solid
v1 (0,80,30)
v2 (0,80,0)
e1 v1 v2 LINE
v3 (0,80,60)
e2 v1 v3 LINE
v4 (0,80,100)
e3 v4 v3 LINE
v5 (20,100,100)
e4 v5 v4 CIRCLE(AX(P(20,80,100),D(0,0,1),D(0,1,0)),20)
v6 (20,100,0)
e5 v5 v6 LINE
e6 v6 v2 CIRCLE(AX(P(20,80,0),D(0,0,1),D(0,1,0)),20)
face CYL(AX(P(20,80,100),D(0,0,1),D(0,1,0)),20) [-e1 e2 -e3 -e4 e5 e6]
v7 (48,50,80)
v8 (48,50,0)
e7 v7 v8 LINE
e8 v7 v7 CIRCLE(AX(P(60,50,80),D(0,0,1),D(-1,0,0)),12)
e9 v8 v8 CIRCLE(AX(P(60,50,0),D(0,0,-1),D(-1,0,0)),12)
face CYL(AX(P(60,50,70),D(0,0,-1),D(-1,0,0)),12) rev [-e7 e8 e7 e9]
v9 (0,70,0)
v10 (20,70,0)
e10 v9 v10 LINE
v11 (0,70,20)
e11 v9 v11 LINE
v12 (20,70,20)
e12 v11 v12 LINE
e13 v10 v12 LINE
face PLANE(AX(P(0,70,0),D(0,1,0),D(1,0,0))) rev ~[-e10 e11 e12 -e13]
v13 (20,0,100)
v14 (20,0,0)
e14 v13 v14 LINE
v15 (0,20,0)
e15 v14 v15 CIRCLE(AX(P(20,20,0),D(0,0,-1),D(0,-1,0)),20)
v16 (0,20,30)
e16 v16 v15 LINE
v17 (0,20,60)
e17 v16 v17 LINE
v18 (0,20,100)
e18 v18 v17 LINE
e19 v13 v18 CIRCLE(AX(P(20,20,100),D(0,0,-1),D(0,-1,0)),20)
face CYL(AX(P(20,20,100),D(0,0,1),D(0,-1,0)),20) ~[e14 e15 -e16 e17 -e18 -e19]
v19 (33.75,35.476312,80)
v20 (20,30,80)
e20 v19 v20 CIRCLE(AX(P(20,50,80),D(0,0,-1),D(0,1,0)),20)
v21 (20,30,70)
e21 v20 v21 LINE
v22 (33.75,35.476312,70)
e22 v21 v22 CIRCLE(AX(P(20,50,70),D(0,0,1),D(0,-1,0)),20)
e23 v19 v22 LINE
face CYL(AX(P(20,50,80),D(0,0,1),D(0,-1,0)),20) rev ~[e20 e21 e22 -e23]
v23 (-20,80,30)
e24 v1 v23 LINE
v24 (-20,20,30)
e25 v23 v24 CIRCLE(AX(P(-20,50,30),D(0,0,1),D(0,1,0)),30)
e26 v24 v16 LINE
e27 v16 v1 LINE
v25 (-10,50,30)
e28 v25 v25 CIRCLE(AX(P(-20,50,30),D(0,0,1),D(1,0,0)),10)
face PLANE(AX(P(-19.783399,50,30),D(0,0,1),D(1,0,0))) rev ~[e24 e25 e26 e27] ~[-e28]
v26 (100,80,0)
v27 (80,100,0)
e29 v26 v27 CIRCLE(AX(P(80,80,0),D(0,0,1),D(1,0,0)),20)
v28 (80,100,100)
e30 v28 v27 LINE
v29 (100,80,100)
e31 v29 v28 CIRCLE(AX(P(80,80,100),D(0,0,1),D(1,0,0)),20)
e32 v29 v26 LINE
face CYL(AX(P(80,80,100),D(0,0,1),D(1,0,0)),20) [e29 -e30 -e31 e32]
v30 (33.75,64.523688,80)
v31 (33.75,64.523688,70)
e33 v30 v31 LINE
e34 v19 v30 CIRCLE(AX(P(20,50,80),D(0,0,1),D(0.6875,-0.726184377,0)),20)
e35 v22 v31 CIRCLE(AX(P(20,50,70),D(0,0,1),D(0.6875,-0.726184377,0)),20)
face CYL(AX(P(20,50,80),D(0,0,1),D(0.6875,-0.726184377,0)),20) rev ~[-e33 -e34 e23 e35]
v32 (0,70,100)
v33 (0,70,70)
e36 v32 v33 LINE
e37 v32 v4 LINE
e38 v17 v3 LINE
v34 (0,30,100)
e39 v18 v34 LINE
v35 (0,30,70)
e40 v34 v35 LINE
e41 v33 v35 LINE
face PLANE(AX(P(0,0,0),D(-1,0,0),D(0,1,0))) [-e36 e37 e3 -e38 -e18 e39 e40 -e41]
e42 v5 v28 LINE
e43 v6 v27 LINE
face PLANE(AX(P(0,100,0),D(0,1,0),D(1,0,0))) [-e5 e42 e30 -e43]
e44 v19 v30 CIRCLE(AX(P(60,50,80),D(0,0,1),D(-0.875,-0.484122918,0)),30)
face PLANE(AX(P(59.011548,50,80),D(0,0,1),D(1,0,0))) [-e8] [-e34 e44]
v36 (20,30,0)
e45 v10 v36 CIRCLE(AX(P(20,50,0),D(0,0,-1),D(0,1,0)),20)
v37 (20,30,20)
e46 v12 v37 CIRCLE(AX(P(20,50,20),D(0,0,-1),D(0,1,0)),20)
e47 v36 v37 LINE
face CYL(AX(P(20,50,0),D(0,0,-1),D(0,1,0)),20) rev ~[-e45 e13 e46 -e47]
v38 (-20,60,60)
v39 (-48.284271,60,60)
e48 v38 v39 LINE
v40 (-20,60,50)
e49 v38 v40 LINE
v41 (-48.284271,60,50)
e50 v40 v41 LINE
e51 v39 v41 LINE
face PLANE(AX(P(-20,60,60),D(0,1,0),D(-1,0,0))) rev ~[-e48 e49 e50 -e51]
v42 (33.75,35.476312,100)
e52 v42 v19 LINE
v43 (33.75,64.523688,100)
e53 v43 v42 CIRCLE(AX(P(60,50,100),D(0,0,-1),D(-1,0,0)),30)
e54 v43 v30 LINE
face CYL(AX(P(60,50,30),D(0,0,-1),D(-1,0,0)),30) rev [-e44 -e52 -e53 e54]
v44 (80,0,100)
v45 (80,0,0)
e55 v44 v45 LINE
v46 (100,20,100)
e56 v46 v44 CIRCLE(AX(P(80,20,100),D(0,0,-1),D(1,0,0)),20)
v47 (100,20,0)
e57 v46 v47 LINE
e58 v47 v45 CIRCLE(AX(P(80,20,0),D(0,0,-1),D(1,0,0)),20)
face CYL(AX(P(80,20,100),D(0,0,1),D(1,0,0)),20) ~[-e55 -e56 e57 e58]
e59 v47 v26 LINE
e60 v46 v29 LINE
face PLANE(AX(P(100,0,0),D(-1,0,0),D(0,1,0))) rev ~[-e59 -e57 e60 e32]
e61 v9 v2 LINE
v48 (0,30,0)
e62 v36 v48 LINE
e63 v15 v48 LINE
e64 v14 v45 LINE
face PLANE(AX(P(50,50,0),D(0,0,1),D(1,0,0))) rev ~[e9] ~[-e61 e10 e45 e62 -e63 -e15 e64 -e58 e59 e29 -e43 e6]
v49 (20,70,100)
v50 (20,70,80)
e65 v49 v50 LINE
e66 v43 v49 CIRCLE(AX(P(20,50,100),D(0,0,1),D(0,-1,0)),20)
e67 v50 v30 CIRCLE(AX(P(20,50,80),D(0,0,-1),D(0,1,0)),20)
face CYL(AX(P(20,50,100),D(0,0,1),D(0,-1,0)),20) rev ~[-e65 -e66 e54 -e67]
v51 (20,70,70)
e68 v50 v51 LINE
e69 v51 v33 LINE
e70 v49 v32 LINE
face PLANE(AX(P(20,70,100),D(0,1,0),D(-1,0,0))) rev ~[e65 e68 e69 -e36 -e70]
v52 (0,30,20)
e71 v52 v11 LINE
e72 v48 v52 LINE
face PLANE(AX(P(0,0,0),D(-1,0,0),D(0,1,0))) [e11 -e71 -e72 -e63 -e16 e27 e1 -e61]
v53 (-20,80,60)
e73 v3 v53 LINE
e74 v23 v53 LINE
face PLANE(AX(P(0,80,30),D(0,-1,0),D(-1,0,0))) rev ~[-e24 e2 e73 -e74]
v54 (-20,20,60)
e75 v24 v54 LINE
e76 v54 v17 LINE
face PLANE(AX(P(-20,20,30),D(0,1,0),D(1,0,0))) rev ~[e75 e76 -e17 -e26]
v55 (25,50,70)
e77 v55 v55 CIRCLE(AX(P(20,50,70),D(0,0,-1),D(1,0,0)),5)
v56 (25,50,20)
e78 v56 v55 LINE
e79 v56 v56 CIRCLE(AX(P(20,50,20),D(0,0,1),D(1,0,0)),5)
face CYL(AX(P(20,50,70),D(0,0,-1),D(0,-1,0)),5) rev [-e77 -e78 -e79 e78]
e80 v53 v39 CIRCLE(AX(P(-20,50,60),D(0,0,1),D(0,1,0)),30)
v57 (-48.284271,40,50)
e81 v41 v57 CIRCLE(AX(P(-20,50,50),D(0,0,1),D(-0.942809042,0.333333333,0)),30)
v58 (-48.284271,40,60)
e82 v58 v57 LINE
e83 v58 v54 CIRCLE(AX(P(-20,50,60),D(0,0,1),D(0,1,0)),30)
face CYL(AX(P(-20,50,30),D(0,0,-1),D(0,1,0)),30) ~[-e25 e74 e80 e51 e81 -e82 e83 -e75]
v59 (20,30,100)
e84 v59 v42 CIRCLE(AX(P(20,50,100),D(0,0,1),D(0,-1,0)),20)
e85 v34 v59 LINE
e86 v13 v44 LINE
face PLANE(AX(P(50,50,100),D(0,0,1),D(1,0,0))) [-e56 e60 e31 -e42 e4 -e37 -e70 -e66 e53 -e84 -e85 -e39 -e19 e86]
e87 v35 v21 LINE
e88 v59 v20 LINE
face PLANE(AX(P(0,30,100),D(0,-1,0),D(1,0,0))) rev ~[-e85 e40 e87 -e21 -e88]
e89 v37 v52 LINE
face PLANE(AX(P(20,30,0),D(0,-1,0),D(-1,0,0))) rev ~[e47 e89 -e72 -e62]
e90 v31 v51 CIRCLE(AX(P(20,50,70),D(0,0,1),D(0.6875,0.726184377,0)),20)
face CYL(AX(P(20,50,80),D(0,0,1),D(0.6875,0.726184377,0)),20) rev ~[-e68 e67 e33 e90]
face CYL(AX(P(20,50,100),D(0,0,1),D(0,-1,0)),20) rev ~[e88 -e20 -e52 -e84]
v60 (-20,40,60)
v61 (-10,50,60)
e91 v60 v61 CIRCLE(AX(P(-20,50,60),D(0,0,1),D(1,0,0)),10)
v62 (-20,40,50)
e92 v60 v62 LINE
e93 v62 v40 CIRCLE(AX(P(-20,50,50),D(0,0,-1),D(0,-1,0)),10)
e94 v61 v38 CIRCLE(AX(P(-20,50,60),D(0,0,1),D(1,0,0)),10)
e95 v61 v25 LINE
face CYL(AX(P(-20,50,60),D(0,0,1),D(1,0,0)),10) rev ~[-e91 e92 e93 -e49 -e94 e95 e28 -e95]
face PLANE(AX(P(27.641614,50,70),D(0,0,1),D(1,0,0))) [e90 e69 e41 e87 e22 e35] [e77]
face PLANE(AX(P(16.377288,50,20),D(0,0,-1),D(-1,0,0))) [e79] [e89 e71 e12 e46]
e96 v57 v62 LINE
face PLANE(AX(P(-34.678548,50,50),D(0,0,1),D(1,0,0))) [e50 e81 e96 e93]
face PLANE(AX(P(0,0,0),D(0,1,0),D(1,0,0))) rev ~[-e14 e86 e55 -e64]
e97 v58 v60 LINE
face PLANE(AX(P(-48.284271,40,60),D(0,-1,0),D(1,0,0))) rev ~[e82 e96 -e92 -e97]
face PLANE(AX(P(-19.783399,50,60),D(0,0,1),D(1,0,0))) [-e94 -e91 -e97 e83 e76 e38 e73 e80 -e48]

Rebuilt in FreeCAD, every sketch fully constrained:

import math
import FreeCAD as App
import Part
import Sketcher

V = App.Vector

doc = App.newDocument("Part")
body = doc.addObject("PartDesign::Body", "Body")

sketch1 = body.newObject("Sketcher::SketchObject", "Sketch")
sketch1.AttachmentSupport = (doc.getObject("XY_Plane"), [""])
sketch1.MapMode = "FlatFace"
sketch1.addGeometry([
    Part.LineSegment(V(0, 100, 0), V(0, 0, 0)),
    Part.LineSegment(V(0, 0, 0), V(100, 0, 0)),
    Part.LineSegment(V(100, 0, 0), V(100, 100, 0)),
    Part.LineSegment(V(100, 100, 0), V(0, 100, 0)),
], False)
sketch1.addConstraint([
    Sketcher.Constraint("Coincident", 0, 2, 1, 1),
    Sketcher.Constraint("Coincident", 1, 2, 2, 1),
    Sketcher.Constraint("Coincident", 2, 2, 3, 1),
    Sketcher.Constraint("Coincident", 3, 2, 0, 1),
    Sketcher.Constraint("Vertical", 0),
    Sketcher.Constraint("Horizontal", 1),
    Sketcher.Constraint("Vertical", 2),
    Sketcher.Constraint("Horizontal", 3),
    Sketcher.Constraint("Coincident", 0, 2, -1, 1),
    Sketcher.Constraint("Equal", 3, 0),
    Sketcher.Constraint("DistanceX", 1, 1, 1, 2, 100.0),
])
pad1 = body.newObject("PartDesign::Pad", "Pad")
pad1.Profile = sketch1
pad1.Length = 100

sketch2 = body.newObject("Sketcher::SketchObject", "Sketch001")
sketch2.AttachmentSupport = (doc.getObject("XY_Plane"), [""])
sketch2.MapMode = "FlatFace"
sketch2.AttachmentOffset = App.Placement(V(0, 0, 100), App.Rotation())
sketch2.addGeometry([
    Part.LineSegment(V(0, 100, 0), V(0, 80, 0)),
    Part.ArcOfCircle(Part.Circle(V(20, 80, 0), V(0, 0, 1), 20), math.radians(90), math.radians(180)),
    Part.LineSegment(V(20, 100, 0), V(0, 100, 0)),
    Part.LineSegment(V(100, 100, 0), V(80, 100, 0)),
    Part.ArcOfCircle(Part.Circle(V(80, 80, 0), V(0, 0, 1), 20), math.radians(0), math.radians(90)),
    Part.LineSegment(V(100, 80, 0), V(100, 100, 0)),
    Part.LineSegment(V(80, 0, 0), V(100, 0, 0)),
    Part.LineSegment(V(100, 0, 0), V(100, 20, 0)),
    Part.ArcOfCircle(Part.Circle(V(80, 20, 0), V(0, 0, 1), 20), math.radians(-90), math.radians(0)),
    Part.LineSegment(V(0, 20, 0), V(0, 0, 0)),
    Part.LineSegment(V(0, 0, 0), V(20, 0, 0)),
    Part.ArcOfCircle(Part.Circle(V(20, 20, 0), V(0, 0, 1), 20), math.radians(180), math.radians(270)),
], False)
sketch2.addConstraint([
    Sketcher.Constraint("Tangent", 0, 2, 1, 2),
    Sketcher.Constraint("Tangent", 1, 1, 2, 1),
    Sketcher.Constraint("Coincident", 2, 2, 0, 1),
    Sketcher.Constraint("Tangent", 3, 2, 4, 2),
    Sketcher.Constraint("Tangent", 4, 1, 5, 1),
    Sketcher.Constraint("Coincident", 5, 2, 3, 1),
    Sketcher.Constraint("Coincident", 6, 2, 7, 1),
    Sketcher.Constraint("Tangent", 7, 2, 8, 2),
    Sketcher.Constraint("Tangent", 8, 1, 6, 1),
    Sketcher.Constraint("Coincident", 9, 2, 10, 1),
    Sketcher.Constraint("Tangent", 10, 2, 11, 2),
    Sketcher.Constraint("Tangent", 11, 1, 9, 1),
    Sketcher.Constraint("Vertical", 0),
    Sketcher.Constraint("Horizontal", 2),
    Sketcher.Constraint("Horizontal", 3),
    Sketcher.Constraint("Vertical", 5),
    Sketcher.Constraint("Horizontal", 6),
    Sketcher.Constraint("Vertical", 7),
    Sketcher.Constraint("Vertical", 9),
    Sketcher.Constraint("Horizontal", 10),
    Sketcher.Constraint("Coincident", 9, 2, -1, 1),
    Sketcher.Constraint("Equal", 1, 4),
    Sketcher.Constraint("Equal", 4, 8),
    Sketcher.Constraint("Equal", 8, 11),
    Sketcher.Constraint("PointOnObject", 0, 2, -2),
    Sketcher.Constraint("PointOnObject", 6, 2, -1),
    Sketcher.Constraint("Horizontal", 1, 3, 4, 3),
    Sketcher.Constraint("Vertical", 4, 3, 8, 3),
    Sketcher.Constraint("Radius", 1, 20.0),
    Sketcher.Constraint("DistanceY", -1, 1, 1, 3, 80.0),
    Sketcher.Constraint("DistanceX", -1, 1, 4, 3, 80.0),
])
pocket1 = body.newObject("PartDesign::Pocket", "Pocket")
pocket1.Profile = sketch2
pocket1.Length = 100

sketch3 = body.newObject("Sketcher::SketchObject", "Sketch002")
sketch3.AttachmentSupport = (doc.getObject("XY_Plane"), [""])
sketch3.MapMode = "FlatFace"
sketch3.addGeometry(Part.Circle(V(60, 50, 0), V(0, 0, 1), 12), False)
sketch3.addConstraint([
    Sketcher.Constraint("Diameter", 0, 24.0),
    Sketcher.Constraint("DistanceX", -1, 1, 0, 3, 60.0),
    Sketcher.Constraint("DistanceY", -1, 1, 0, 3, 50.0),
])
pocket2 = body.newObject("PartDesign::Pocket", "Pocket001")
pocket2.Profile = sketch3
pocket2.Length = 80
pocket2.Reversed = True

sketch4 = body.newObject("Sketcher::SketchObject", "Sketch003")
sketch4.AttachmentSupport = (doc.getObject("XY_Plane"), [""])
sketch4.MapMode = "FlatFace"
sketch4.AttachmentOffset = App.Placement(V(0, 0, 20), App.Rotation())
sketch4.addGeometry(Part.Circle(V(20, 50, 0), V(0, 0, 1), 5), False)
sketch4.addConstraint([
    Sketcher.Constraint("Diameter", 0, 10.0),
    Sketcher.Constraint("DistanceX", -1, 1, 0, 3, 20.0),
    Sketcher.Constraint("DistanceY", -1, 1, 0, 3, 50.0),
])
pocket3 = body.newObject("PartDesign::Pocket", "Pocket002")
pocket3.Profile = sketch4
pocket3.Length = 50
pocket3.Reversed = True

sketch5 = body.newObject("Sketcher::SketchObject", "Sketch004")
sketch5.AttachmentSupport = (doc.getObject("XY_Plane"), [""])
sketch5.MapMode = "FlatFace"
sketch5.AttachmentOffset = App.Placement(V(0, 0, 30), App.Rotation())
sketch5.addGeometry([
    Part.LineSegment(V(0, 80, 0), V(-20, 80, 0)),
    Part.ArcOfCircle(Part.Circle(V(-20, 50, 0), V(0, 0, 1), 30), math.radians(90), math.radians(270)),
    Part.LineSegment(V(-20, 20, 0), V(0, 20, 0)),
    Part.LineSegment(V(0, 20, 0), V(0, 80, 0)),
], False)
sketch5.addConstraint([
    Sketcher.Constraint("Tangent", 0, 2, 1, 1),
    Sketcher.Constraint("Tangent", 1, 2, 2, 1),
    Sketcher.Constraint("Coincident", 2, 2, 3, 1),
    Sketcher.Constraint("Coincident", 3, 2, 0, 1),
    Sketcher.Constraint("Horizontal", 0),
    Sketcher.Constraint("Horizontal", 2),
    Sketcher.Constraint("Vertical", 3),
    Sketcher.Constraint("PointOnObject", 2, 2, -2),
    Sketcher.Constraint("Radius", 1, 30.0),
    Sketcher.Constraint("DistanceX", 0, 2, 0, 1, 20.0),
    Sketcher.Constraint("DistanceY", -1, 1, 1, 3, 50.0),
])
pad2 = body.newObject("PartDesign::Pad", "Pad001")
pad2.Profile = sketch5
pad2.Length = 30

sketch6 = body.newObject("Sketcher::SketchObject", "Sketch005")
sketch6.AttachmentSupport = (doc.getObject("XY_Plane"), [""])
sketch6.MapMode = "FlatFace"
sketch6.AttachmentOffset = App.Placement(V(0, 0, 60), App.Rotation())
sketch6.addGeometry(Part.Circle(V(-20, 50, 0), V(0, 0, 1), 10), False)
sketch6.addConstraint([
    Sketcher.Constraint("Diameter", 0, 20.0),
    Sketcher.Constraint("DistanceX", 0, 3, -1, 1, 20.0),
    Sketcher.Constraint("DistanceY", -1, 1, 0, 3, 50.0),
])
pocket4 = body.newObject("PartDesign::Pocket", "Pocket003")
pocket4.Profile = sketch6
pocket4.Length = 30

sketch7 = body.newObject("Sketcher::SketchObject", "Sketch006")
sketch7.AttachmentSupport = (doc.getObject("XY_Plane"), [""])
sketch7.MapMode = "FlatFace"
sketch7.AttachmentOffset = App.Placement(V(0, 0, 60), App.Rotation())
sketch7.addGeometry([
    Part.LineSegment(V(-20, 60, 0), V(-48, 60, 0)),
    Part.ArcOfCircle(Part.Circle(V(-20, 50, 0), V(0, 0, 1), 30), math.radians(161), math.radians(199)),
    Part.LineSegment(V(-48, 40, 0), V(-20, 40, 0)),
    Part.ArcOfCircle(Part.Circle(V(-20, 50, 0), V(0, 0, 1), 10), math.radians(90), math.radians(270)),
], False)
sketch7.addConstraint([
    Sketcher.Constraint("Coincident", 0, 2, 1, 1),
    Sketcher.Constraint("Coincident", 1, 2, 2, 1),
    Sketcher.Constraint("Tangent", 2, 2, 3, 2),
    Sketcher.Constraint("Tangent", 3, 1, 0, 1),
    Sketcher.Constraint("Horizontal", 0),
    Sketcher.Constraint("Horizontal", 2),
    Sketcher.Constraint("Coincident", 3, 3, 1, 3),
    Sketcher.Constraint("Radius", 1, 30.0),
    Sketcher.Constraint("Radius", 3, 10.0),
    Sketcher.Constraint("DistanceX", 1, 3, -1, 1, 20.0),
    Sketcher.Constraint("DistanceY", -1, 1, 1, 3, 50.0),
])
pocket5 = body.newObject("PartDesign::Pocket", "Pocket004")
pocket5.Profile = sketch7
pocket5.Length = 10

sketch8 = body.newObject("Sketcher::SketchObject", "Sketch007")
sketch8.AttachmentSupport = (doc.getObject("XY_Plane"), [""])
sketch8.MapMode = "FlatFace"
sketch8.AttachmentOffset = App.Placement(V(0, 0, 30), App.Rotation())
sketch8.addGeometry(Part.Circle(V(60, 50, 0), V(0, 0, 1), 30), False)
sketch8.addConstraint([
    Sketcher.Constraint("Diameter", 0, 60.0),
    Sketcher.Constraint("DistanceX", -1, 1, 0, 3, 60.0),
    Sketcher.Constraint("DistanceY", -1, 1, 0, 3, 50.0),
])
pocket6 = body.newObject("PartDesign::Pocket", "Pocket005")
pocket6.Profile = sketch8
pocket6.Length = 96
pocket6.Reversed = True

sketch9 = body.newObject("Sketcher::SketchObject", "Sketch008")
sketch9.AttachmentSupport = (doc.getObject("XY_Plane"), [""])
sketch9.MapMode = "FlatFace"
sketch9.AttachmentOffset = App.Placement(V(0, 0, 100), App.Rotation())
sketch9.addGeometry([
    Part.LineSegment(V(20, 70, 0), V(0, 70, 0)),
    Part.LineSegment(V(0, 70, 0), V(0, 30, 0)),
    Part.LineSegment(V(0, 30, 0), V(20, 30, 0)),
    Part.ArcOfCircle(Part.Circle(V(20, 50, 0), V(0, 0, 1), 20), math.radians(-90), math.radians(90)),
], False)
sketch9.addConstraint([
    Sketcher.Constraint("Coincident", 0, 2, 1, 1),
    Sketcher.Constraint("Coincident", 1, 2, 2, 1),
    Sketcher.Constraint("Tangent", 2, 2, 3, 1),
    Sketcher.Constraint("Tangent", 3, 2, 0, 1),
    Sketcher.Constraint("Horizontal", 0),
    Sketcher.Constraint("Vertical", 1),
    Sketcher.Constraint("Horizontal", 2),
    Sketcher.Constraint("PointOnObject", 0, 2, -2),
    Sketcher.Constraint("Radius", 3, 20.0),
    Sketcher.Constraint("DistanceX", 0, 2, 0, 1, 20.0),
    Sketcher.Constraint("DistanceY", -1, 1, 3, 3, 50.0),
])
pocket7 = body.newObject("PartDesign::Pocket", "Pocket006")
pocket7.Profile = sketch9
pocket7.Length = 30

sketch10 = body.newObject("Sketcher::SketchObject", "Sketch009")
sketch10.AttachmentSupport = (doc.getObject("XY_Plane"), [""])
sketch10.MapMode = "FlatFace"
sketch10.AttachmentOffset = App.Placement(V(0, 0, 70), App.Rotation())
sketch10.addGeometry([
    Part.LineSegment(V(20, 70, 0), V(20, 55, 0)),
    Part.ArcOfCircle(Part.Circle(V(20, 50, 0), V(0, 0, 1), 5), math.radians(-90), math.radians(90)),
    Part.LineSegment(V(20, 45, 0), V(20, 30, 0)),
    Part.ArcOfCircle(Part.Circle(V(20, 50, 0), V(0, 0, 1), 20), math.radians(-90), math.radians(90)),
], False)
sketch10.addConstraint([
    Sketcher.Constraint("Coincident", 0, 2, 1, 2),
    Sketcher.Constraint("Coincident", 1, 1, 2, 1),
    Sketcher.Constraint("Coincident", 2, 2, 3, 1),
    Sketcher.Constraint("Coincident", 3, 2, 0, 1),
    Sketcher.Constraint("Vertical", 0),
    Sketcher.Constraint("Vertical", 2),
    Sketcher.Constraint("Coincident", 3, 3, 1, 3),
    Sketcher.Constraint("Vertical", 3, 3, 0, 2),
    Sketcher.Constraint("Vertical", 0, 2, 1, 1),
    Sketcher.Constraint("Radius", 1, 5.0),
    Sketcher.Constraint("Radius", 3, 20.0),
    Sketcher.Constraint("DistanceX", -1, 1, 1, 3, 20.0),
    Sketcher.Constraint("DistanceY", -1, 1, 1, 3, 50.0),
])
pad3 = body.newObject("PartDesign::Pad", "Pad002")
pad3.Profile = sketch10
pad3.Length = 10

sketch11 = body.newObject("Sketcher::SketchObject", "Sketch010")
sketch11.AttachmentSupport = (doc.getObject("XY_Plane"), [""])
sketch11.MapMode = "FlatFace"
sketch11.AttachmentOffset = App.Placement(V(0, 0, 30), App.Rotation())
sketch11.addGeometry([
    Part.Circle(V(60, 50, 0), V(0, 0, 1), 30),
    Part.Circle(V(60, 50, 0), V(0, 0, 1), 12),
], False)
sketch11.addConstraint([
    Sketcher.Constraint("Coincident", 1, 3, 0, 3),
    Sketcher.Constraint("Diameter", 0, 60.0),
    Sketcher.Constraint("Diameter", 1, 24.0),
    Sketcher.Constraint("DistanceX", -1, 1, 0, 3, 60.0),
    Sketcher.Constraint("DistanceY", -1, 1, 0, 3, 50.0),
])
pad4 = body.newObject("PartDesign::Pad", "Pad003")
pad4.Profile = sketch11
pad4.Length = 40

sketch12 = body.newObject("Sketcher::SketchObject", "Sketch011")
sketch12.AttachmentSupport = (doc.getObject("XY_Plane"), [""])
sketch12.MapMode = "FlatFace"
sketch12.AttachmentOffset = App.Placement(V(0, 0, 70), App.Rotation())
sketch12.addGeometry([
    Part.ArcOfCircle(Part.Circle(V(60, 50, 0), V(0, 0, 1), 30), math.radians(-151), math.radians(151)),
    Part.ArcOfCircle(Part.Circle(V(20, 50, 0), V(0, 0, 1), 20), math.radians(-47), math.radians(47)),
    Part.Circle(V(60, 50, 0), V(0, 0, 1), 12),
], False)
sketch12.addConstraint([
    Sketcher.Constraint("Coincident", 0, 1, 1, 1),
    Sketcher.Constraint("Coincident", 1, 2, 0, 2),
    Sketcher.Constraint("Coincident", 2, 3, 0, 3),
    Sketcher.Constraint("Horizontal", 0, 3, 1, 3),
    Sketcher.Constraint("Diameter", 2, 24.0),
    Sketcher.Constraint("Radius", 0, 30.0),
    Sketcher.Constraint("Radius", 1, 20.0),
    Sketcher.Constraint("DistanceX", -1, 1, 0, 3, 60.0),
    Sketcher.Constraint("DistanceY", -1, 1, 0, 3, 50.0),
    Sketcher.Constraint("DistanceX", -1, 1, 1, 3, 20.0),
])
pad5 = body.newObject("PartDesign::Pad", "Pad004")
pad5.Profile = sketch12
pad5.Length = 10

sketch13 = body.newObject("Sketcher::SketchObject", "Sketch012")
sketch13.AttachmentSupport = (doc.getObject("XY_Plane"), [""])
sketch13.MapMode = "FlatFace"
sketch13.AttachmentOffset = App.Placement(V(0, 0, 80), App.Rotation())
sketch13.addGeometry([
    Part.LineSegment(V(20, 70, 0), V(20, 55, 0)),
    Part.ArcOfCircle(Part.Circle(V(20, 50, 0), V(0, 0, 1), 5), math.radians(-90), math.radians(90)),
    Part.LineSegment(V(20, 45, 0), V(20, 30, 0)),
    Part.ArcOfCircle(Part.Circle(V(20, 50, 0), V(0, 0, 1), 20), math.radians(-90), math.radians(-47)),
    Part.ArcOfCircle(Part.Circle(V(20, 50, 0), V(0, 0, 1), 20), math.radians(-47), math.radians(47)),
    Part.ArcOfCircle(Part.Circle(V(20, 50, 0), V(0, 0, 1), 20), math.radians(47), math.radians(90)),
], False)
sketch13.addConstraint([
    Sketcher.Constraint("Coincident", 0, 2, 1, 2),
    Sketcher.Constraint("Coincident", 1, 1, 2, 1),
    Sketcher.Constraint("Coincident", 2, 2, 3, 1),
    Sketcher.Constraint("Tangent", 3, 2, 4, 1),
    Sketcher.Constraint("Tangent", 4, 2, 5, 1),
    Sketcher.Constraint("Coincident", 5, 2, 0, 1),
    Sketcher.Constraint("Vertical", 0),
    Sketcher.Constraint("Vertical", 2),
    Sketcher.Constraint("Coincident", 3, 3, 1, 3),
    Sketcher.Constraint("Coincident", 5, 3, 1, 3),
    Sketcher.Constraint("Vertical", 5, 3, 0, 2),
    Sketcher.Constraint("Vertical", 0, 2, 1, 1),
    Sketcher.Constraint("Vertical", 3, 2, 4, 2),
    Sketcher.Constraint("Radius", 1, 5.0),
    Sketcher.Constraint("Radius", 3, 20.0),
    Sketcher.Constraint("DistanceX", -1, 1, 1, 3, 20.0),
    Sketcher.Constraint("DistanceY", -1, 1, 1, 3, 50.0),
    Sketcher.Constraint("DistanceX", -1, 1, 3, 2, 33.75),
])
pocket8 = body.newObject("PartDesign::Pocket", "Pocket007")
pocket8.Profile = sketch13
pocket8.Length = 10

sketch14 = body.newObject("Sketcher::SketchObject", "Sketch013")
sketch14.AttachmentSupport = (doc.getObject("XY_Plane"), [""])
sketch14.MapMode = "FlatFace"
sketch14.addGeometry([
    Part.LineSegment(V(0, 70, 0), V(20, 70, 0)),
    Part.ArcOfCircle(Part.Circle(V(20, 50, 0), V(0, 0, 1), 20), math.radians(-90), math.radians(90)),
    Part.LineSegment(V(20, 30, 0), V(0, 30, 0)),
    Part.LineSegment(V(0, 30, 0), V(0, 70, 0)),
], False)
sketch14.addConstraint([
    Sketcher.Constraint("Tangent", 0, 2, 1, 2),
    Sketcher.Constraint("Tangent", 1, 1, 2, 1),
    Sketcher.Constraint("Coincident", 2, 2, 3, 1),
    Sketcher.Constraint("Coincident", 3, 2, 0, 1),
    Sketcher.Constraint("Horizontal", 0),
    Sketcher.Constraint("Horizontal", 2),
    Sketcher.Constraint("Vertical", 3),
    Sketcher.Constraint("PointOnObject", 2, 2, -2),
    Sketcher.Constraint("Radius", 1, 20.0),
    Sketcher.Constraint("DistanceX", 0, 1, 0, 2, 20.0),
    Sketcher.Constraint("DistanceY", -1, 1, 1, 3, 50.0),
])
pocket9 = body.newObject("PartDesign::Pocket", "Pocket008")
pocket9.Profile = sketch14
pocket9.Length = 20
pocket9.Reversed = True

doc.recompute()
